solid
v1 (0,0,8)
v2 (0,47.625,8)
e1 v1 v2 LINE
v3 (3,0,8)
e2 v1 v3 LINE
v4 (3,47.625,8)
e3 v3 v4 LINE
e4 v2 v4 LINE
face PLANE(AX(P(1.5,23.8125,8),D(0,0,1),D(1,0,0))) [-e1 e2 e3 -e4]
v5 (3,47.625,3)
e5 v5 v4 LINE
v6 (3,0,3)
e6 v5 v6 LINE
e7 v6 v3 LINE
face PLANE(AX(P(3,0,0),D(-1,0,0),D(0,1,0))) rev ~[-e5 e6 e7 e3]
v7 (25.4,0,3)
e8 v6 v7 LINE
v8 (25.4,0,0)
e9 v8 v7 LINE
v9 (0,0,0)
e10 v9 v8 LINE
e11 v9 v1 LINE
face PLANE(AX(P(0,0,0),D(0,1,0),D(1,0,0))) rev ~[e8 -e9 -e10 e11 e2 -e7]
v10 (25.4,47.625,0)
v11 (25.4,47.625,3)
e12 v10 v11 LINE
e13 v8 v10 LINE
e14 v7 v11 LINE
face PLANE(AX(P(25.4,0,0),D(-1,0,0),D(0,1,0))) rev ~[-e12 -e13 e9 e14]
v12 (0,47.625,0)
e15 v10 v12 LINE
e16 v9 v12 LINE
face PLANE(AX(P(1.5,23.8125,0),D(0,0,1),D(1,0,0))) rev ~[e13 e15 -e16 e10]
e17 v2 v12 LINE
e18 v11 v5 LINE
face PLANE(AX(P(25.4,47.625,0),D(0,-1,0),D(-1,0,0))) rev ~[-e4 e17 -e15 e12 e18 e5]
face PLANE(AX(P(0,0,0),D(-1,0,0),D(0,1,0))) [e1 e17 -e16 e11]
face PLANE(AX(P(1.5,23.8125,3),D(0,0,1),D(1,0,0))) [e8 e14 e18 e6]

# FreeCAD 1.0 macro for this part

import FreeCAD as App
import Part
import Sketcher

doc = App.newDocument("Part")
body = doc.addObject("PartDesign::Body", "Body")

# Sketch on XY plane
sketch1 = doc.addObject("Sketcher::SketchObject", "Sketch")
body.addObject(sketch1)
sketch1.AttachmentSupport = (doc.XY_Plane, [""])
sketch1.MapMode = "FlatFace"
sketch1.addGeometry(Part.LineSegment(App.Vector(0, 48, 0), App.Vector(0, 0, 0)), False)
sketch1.addGeometry(Part.LineSegment(App.Vector(0, 0, 0), App.Vector(25, 0, 0)), False)
sketch1.addGeometry(Part.LineSegment(App.Vector(25, 0, 0), App.Vector(25, 48, 0)), False)
sketch1.addGeometry(Part.LineSegment(App.Vector(25, 48, 0), App.Vector(0, 48, 0)), False)
sketch1.addConstraint(Sketcher.Constraint("Coincident", 0, 2, 1, 1))
sketch1.addConstraint(Sketcher.Constraint("Coincident", 1, 2, 2, 1))
sketch1.addConstraint(Sketcher.Constraint("Coincident", 2, 2, 3, 1))
sketch1.addConstraint(Sketcher.Constraint("Coincident", 3, 2, 0, 1))
sketch1.addConstraint(Sketcher.Constraint("Vertical", 0))
sketch1.addConstraint(Sketcher.Constraint("Horizontal", 1))
sketch1.addConstraint(Sketcher.Constraint("Vertical", 2))
sketch1.addConstraint(Sketcher.Constraint("Horizontal", 3))
sketch1.addConstraint(Sketcher.Constraint("Coincident", 0, 2, -1, 1))
sketch1.addConstraint(Sketcher.Constraint("DistanceX", 1, 1, 1, 2, 25.4))
sketch1.addConstraint(Sketcher.Constraint("DistanceY", 0, 2, 0, 1, 47.625))
pad1 = doc.addObject("PartDesign::Pad", "Pad")
body.addObject(pad1)
pad1.Profile = sketch1
pad1.Length = 3

# Sketch on XY plane
sketch2 = doc.addObject("Sketcher::SketchObject", "Sketch001")
body.addObject(sketch2)
sketch2.AttachmentSupport = (doc.XY_Plane, [""])
sketch2.MapMode = "FlatFace"
sketch2.addGeometry(Part.LineSegment(App.Vector(0, 47.6, 0), App.Vector(0, 0, 0)), False)
sketch2.addGeometry(Part.LineSegment(App.Vector(0, 0, 0), App.Vector(3, 0, 0)), False)
sketch2.addGeometry(Part.LineSegment(App.Vector(3, 0, 0), App.Vector(3, 47.6, 0)), False)
sketch2.addGeometry(Part.LineSegment(App.Vector(3, 47.6, 0), App.Vector(0, 47.6, 0)), False)
sketch2.addConstraint(Sketcher.Constraint("Coincident", 0, 2, 1, 1))
sketch2.addConstraint(Sketcher.Constraint("Coincident", 1, 2, 2, 1))
sketch2.addConstraint(Sketcher.Constraint("Coincident", 2, 2, 3, 1))
sketch2.addConstraint(Sketcher.Constraint("Coincident", 3, 2, 0, 1))
sketch2.addConstraint(Sketcher.Constraint("Vertical", 0))
sketch2.addConstraint(Sketcher.Constraint("Horizontal", 1))
sketch2.addConstraint(Sketcher.Constraint("Vertical", 2))
sketch2.addConstraint(Sketcher.Constraint("Horizontal", 3))
sketch2.addConstraint(Sketcher.Constraint("Coincident", 0, 2, -1, 1))
sketch2.addConstraint(Sketcher.Constraint("DistanceX", 1, 1, 1, 2, 3.0))
sketch2.addConstraint(Sketcher.Constraint("DistanceY", 0, 2, 0, 1, 47.625))
pad2 = doc.addObject("PartDesign::Pad", "Pad001")
body.addObject(pad2)
pad2.Profile = sketch2
pad2.Length = 8

doc.recompute()
